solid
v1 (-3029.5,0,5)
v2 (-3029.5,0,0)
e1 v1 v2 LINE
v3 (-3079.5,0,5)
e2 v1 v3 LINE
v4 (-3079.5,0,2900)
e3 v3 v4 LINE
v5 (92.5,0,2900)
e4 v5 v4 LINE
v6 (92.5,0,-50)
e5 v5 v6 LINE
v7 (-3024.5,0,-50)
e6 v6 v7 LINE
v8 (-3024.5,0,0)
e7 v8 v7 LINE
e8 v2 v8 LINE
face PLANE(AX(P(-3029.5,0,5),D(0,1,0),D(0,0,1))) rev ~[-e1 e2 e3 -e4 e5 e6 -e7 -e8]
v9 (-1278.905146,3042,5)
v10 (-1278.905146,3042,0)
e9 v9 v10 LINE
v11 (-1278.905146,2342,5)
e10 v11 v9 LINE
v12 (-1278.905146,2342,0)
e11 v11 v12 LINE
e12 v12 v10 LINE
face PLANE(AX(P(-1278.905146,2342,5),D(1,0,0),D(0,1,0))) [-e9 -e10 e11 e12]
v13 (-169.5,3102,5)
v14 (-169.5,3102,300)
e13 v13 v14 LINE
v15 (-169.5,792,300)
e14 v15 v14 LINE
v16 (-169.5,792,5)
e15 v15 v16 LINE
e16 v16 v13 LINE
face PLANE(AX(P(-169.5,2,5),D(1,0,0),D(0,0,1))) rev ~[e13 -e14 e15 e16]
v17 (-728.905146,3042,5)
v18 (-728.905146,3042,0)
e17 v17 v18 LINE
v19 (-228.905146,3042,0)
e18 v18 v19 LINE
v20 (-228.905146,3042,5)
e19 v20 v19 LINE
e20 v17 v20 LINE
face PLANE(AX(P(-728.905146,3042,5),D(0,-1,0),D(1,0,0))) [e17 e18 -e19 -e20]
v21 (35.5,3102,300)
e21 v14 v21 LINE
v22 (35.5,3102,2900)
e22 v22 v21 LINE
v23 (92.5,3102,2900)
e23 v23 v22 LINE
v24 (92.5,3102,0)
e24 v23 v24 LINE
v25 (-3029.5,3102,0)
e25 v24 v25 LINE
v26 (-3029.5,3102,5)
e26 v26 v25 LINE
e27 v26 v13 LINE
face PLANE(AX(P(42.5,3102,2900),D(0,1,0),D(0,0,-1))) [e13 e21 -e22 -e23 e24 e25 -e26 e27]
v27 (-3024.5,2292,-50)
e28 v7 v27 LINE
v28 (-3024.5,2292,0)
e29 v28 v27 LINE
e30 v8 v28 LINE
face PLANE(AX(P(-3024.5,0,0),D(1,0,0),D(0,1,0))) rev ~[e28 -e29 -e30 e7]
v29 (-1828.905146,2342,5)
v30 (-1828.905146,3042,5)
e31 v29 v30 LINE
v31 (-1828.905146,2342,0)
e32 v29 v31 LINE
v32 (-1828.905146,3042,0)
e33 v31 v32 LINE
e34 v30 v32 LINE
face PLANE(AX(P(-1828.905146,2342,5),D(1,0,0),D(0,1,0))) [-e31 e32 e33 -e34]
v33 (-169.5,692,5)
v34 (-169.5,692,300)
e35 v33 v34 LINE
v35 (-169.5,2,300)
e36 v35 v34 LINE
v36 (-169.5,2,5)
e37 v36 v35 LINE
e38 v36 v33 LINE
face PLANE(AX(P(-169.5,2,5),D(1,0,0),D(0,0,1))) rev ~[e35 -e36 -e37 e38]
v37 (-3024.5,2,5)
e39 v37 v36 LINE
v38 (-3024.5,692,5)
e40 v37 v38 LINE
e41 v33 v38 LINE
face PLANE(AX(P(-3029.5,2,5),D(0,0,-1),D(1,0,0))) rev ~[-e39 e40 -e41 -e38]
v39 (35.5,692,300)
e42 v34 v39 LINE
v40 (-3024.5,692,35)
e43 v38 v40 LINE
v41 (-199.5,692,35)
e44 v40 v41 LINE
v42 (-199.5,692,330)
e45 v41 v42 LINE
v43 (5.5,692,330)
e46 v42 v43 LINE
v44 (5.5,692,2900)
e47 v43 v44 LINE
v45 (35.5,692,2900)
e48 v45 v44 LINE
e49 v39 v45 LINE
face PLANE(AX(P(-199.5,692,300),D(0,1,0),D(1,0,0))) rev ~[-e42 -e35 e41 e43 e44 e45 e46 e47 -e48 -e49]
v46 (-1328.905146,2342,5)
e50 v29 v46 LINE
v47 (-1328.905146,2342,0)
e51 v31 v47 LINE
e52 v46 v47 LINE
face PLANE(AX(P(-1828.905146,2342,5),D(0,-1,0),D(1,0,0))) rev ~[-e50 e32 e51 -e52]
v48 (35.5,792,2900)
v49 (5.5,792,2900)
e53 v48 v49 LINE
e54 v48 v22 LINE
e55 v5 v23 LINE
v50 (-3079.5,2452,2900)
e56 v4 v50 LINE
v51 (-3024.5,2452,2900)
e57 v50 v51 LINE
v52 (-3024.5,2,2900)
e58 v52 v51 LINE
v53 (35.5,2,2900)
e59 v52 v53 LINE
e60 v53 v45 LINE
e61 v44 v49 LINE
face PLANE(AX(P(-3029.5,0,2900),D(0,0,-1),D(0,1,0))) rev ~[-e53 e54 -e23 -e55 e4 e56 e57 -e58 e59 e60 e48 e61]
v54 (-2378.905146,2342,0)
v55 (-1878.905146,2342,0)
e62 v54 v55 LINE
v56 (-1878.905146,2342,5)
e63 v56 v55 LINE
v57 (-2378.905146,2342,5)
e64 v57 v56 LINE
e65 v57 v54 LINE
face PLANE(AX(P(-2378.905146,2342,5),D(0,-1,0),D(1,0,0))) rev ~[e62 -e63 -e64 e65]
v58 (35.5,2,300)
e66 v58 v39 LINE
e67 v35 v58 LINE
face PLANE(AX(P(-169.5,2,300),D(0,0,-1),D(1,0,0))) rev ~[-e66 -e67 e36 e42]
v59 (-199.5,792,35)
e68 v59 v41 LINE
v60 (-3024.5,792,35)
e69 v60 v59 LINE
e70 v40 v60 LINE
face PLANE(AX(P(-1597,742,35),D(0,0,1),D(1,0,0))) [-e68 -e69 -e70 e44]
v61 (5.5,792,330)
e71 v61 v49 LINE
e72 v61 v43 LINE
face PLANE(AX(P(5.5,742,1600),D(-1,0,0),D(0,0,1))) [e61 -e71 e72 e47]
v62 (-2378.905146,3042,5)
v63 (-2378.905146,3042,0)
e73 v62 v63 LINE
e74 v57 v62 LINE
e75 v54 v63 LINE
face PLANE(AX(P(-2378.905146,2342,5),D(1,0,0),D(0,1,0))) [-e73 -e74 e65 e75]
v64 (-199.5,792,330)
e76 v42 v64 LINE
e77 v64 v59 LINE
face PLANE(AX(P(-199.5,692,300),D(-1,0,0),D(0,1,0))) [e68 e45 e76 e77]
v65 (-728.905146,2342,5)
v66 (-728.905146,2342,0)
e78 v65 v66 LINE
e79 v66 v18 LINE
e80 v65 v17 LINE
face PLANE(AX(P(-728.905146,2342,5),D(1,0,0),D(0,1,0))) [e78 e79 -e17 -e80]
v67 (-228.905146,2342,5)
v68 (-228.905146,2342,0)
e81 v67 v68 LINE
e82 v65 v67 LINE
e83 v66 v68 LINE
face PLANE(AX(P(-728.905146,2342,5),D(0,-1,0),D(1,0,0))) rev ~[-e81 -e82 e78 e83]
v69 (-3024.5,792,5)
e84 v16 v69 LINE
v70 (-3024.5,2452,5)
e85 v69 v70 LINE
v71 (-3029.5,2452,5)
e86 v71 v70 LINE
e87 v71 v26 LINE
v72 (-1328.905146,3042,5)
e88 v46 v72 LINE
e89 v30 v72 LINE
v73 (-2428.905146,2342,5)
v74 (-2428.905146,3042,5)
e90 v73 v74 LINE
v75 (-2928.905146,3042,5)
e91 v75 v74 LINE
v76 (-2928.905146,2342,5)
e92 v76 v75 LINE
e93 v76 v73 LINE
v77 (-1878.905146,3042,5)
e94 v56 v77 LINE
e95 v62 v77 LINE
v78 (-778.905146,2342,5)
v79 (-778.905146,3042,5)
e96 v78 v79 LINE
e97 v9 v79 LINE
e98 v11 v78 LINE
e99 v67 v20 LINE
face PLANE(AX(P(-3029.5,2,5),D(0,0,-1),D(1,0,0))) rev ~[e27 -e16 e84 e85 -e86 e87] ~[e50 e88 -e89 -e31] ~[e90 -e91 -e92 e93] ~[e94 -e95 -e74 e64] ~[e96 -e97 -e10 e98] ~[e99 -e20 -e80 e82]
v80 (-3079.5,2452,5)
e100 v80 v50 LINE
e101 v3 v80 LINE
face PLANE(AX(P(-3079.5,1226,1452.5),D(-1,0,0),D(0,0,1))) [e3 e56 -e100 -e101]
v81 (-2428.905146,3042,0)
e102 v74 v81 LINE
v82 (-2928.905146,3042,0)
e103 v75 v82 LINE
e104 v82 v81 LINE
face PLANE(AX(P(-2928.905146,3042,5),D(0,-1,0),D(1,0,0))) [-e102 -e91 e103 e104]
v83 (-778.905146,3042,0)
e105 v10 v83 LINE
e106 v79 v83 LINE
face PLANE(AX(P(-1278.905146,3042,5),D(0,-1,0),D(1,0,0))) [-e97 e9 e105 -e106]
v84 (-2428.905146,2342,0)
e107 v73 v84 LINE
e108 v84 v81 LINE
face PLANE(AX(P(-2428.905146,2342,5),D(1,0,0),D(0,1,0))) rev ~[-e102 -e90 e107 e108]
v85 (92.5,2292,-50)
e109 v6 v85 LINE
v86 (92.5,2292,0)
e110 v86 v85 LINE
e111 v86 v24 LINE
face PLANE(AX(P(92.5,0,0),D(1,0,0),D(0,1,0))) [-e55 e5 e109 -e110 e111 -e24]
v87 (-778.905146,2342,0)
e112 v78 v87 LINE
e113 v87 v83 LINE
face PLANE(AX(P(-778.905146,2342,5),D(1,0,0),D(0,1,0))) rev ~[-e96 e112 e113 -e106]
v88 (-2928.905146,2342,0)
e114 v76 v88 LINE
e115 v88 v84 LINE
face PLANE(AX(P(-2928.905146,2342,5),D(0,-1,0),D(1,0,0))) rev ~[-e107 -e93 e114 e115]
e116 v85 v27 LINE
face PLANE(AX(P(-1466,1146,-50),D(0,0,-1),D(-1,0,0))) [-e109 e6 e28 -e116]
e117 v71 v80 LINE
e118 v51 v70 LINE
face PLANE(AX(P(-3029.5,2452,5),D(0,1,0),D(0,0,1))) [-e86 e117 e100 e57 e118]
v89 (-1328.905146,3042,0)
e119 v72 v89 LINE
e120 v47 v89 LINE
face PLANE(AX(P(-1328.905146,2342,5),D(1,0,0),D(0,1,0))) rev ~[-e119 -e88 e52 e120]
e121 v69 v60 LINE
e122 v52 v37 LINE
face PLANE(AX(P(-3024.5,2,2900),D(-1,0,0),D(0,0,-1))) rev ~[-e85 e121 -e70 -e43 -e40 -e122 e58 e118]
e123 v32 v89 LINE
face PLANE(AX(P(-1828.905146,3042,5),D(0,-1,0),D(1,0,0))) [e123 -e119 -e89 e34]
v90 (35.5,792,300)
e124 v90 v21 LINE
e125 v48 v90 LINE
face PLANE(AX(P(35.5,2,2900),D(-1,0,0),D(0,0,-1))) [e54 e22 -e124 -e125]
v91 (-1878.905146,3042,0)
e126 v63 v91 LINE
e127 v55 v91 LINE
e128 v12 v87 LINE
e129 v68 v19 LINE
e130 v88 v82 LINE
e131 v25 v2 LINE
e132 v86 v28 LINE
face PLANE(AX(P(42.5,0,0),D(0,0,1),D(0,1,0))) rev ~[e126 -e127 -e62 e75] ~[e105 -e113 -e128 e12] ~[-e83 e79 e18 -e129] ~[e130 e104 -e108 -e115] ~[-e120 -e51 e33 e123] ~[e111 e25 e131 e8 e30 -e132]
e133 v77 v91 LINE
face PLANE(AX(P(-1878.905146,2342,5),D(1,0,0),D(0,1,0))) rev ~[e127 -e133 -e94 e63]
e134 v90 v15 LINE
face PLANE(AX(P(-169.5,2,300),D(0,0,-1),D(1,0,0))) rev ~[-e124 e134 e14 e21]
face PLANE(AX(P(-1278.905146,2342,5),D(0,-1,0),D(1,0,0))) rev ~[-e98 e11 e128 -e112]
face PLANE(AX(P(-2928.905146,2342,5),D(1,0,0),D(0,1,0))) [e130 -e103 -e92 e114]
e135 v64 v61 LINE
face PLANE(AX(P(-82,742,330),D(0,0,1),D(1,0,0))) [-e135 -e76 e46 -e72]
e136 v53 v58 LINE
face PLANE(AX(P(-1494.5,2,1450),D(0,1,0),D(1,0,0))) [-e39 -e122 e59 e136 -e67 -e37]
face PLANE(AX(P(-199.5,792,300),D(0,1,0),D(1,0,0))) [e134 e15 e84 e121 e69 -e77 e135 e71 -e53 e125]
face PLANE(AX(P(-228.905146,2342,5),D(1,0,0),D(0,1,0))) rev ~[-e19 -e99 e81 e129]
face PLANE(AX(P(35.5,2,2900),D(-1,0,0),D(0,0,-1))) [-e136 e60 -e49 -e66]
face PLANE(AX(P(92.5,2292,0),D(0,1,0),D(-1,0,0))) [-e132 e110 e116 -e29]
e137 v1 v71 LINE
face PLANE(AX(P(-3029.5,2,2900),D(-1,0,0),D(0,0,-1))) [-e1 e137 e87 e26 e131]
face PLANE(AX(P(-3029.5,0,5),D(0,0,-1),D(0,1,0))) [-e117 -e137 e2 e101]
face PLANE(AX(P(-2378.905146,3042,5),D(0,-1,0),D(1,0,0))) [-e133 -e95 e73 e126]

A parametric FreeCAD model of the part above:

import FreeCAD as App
import Part
import Sketcher
from FreeCAD import Vector


def add_polygon(sketch, points):
    """Adds a closed chain of lines whose ends are joined by coincident constraints."""
    first, n = sketch.GeometryCount, len(points)
    for a, b in zip(points, points[1:] + points[:1]):
        sketch.addGeometry(Part.LineSegment(App.Vector(*a, 0), App.Vector(*b, 0)), False)
    for i in range(n):
        sketch.addConstraint(Sketcher.Constraint("Coincident", first + i, 2, first + (i + 1) % n, 1))

doc = App.newDocument("Part")
body = doc.addObject("PartDesign::Body", "Body")

# Sketch on XZ plane
sketch1 = body.newObject("Sketcher::SketchObject", "Sketch")
sketch1.AttachmentSupport = (doc.getObject("XZ_Plane"), [""])
sketch1.MapMode = "FlatFace"
add_polygon(sketch1, [(-3030, 0), (-3030, 2900), (40, 2900), (40, 0)])  # lines 0-3
sketch1.addConstraint([
    Sketcher.Constraint("Vertical", 0),
    Sketcher.Constraint("Horizontal", 1),
    Sketcher.Constraint("Vertical", 2),
    Sketcher.Constraint("Horizontal", 3),
    Sketcher.Constraint("PointOnObject", 2, 2, -1),
    Sketcher.Constraint("DistanceX", 1, 1, 1, 2, 3070.0),
    Sketcher.Constraint("DistanceY", 0, 1, 0, 2, 2900.0),
    Sketcher.Constraint("DistanceX", 0, 2, -1, 1, 3029.5),
])
pad1 = body.newObject("PartDesign::Pad", "Pad")
pad1.Profile = sketch1
pad1.Length = 2
pad1.Reversed = True

# Sketch on XZ plane
sketch2 = body.newObject("Sketcher::SketchObject", "Sketch001")
sketch2.AttachmentSupport = (doc.getObject("XZ_Plane"), [""])
sketch2.MapMode = "FlatFace"
sketch2.AttachmentOffset = App.Placement(Vector(0, 0, -2), App.Rotation())
add_polygon(sketch2, [(36, 300), (36, 2900), (40, 2900), (40, 0), (-3030, 0), (-3030, 5), (-170, 5), (-170, 300)])  # lines 0-7
sketch2.addConstraint([
    Sketcher.Constraint("Vertical", 0),
    Sketcher.Constraint("Horizontal", 1),
    Sketcher.Constraint("Vertical", 2),
    Sketcher.Constraint("Horizontal", 3),
    Sketcher.Constraint("Vertical", 4),
    Sketcher.Constraint("Horizontal", 5),
    Sketcher.Constraint("Vertical", 6),
    Sketcher.Constraint("Horizontal", 7),
    Sketcher.Constraint("PointOnObject", 2, 2, -1),
    Sketcher.Constraint("Equal", 1, 4),
    Sketcher.Constraint("DistanceX", 1, 1, 1, 2, 5.0),
    Sketcher.Constraint("DistanceX", 3, 2, 3, 1, 3070.0),
    Sketcher.Constraint("DistanceX", 5, 1, 5, 2, 2860.0),
    Sketcher.Constraint("DistanceY", 0, 1, 0, 2, 2600.0),
    Sketcher.Constraint("DistanceY", 2, 2, 2, 1, 2900.0),
    Sketcher.Constraint("DistanceX", -1, 1, 0, 2, 35.5),
])
pad2 = body.newObject("PartDesign::Pad", "Pad001")
pad2.Profile = sketch2
pad2.Length = 3100
pad2.Reversed = True

# Sketch on XZ plane
sketch3 = body.newObject("Sketcher::SketchObject", "Sketch002")
sketch3.AttachmentSupport = (doc.getObject("XZ_Plane"), [""])
sketch3.MapMode = "FlatFace"
sketch3.AttachmentOffset = App.Placement(Vector(0, 0, -2), App.Rotation())
add_polygon(sketch3, [(-3030, 5), (-3030, 2900), (-3024, 2900), (-3024, 5)])  # lines 0-3
sketch3.addConstraint([
    Sketcher.Constraint("Vertical", 0),
    Sketcher.Constraint("Horizontal", 1),
    Sketcher.Constraint("Vertical", 2),
    Sketcher.Constraint("Horizontal", 3),
    Sketcher.Constraint("DistanceX", 1, 1, 1, 2, 5.0),
    Sketcher.Constraint("DistanceY", 0, 1, 0, 2, 2895.0),
    Sketcher.Constraint("DistanceY", -1, 1, 0, 2, 2900.0),
    Sketcher.Constraint("DistanceX", 0, 2, -1, 1, 3029.5),
])
pad3 = body.newObject("PartDesign::Pad", "Pad002")
pad3.Profile = sketch3
pad3.Length = 2450
pad3.Reversed = True

# Sketch on XY plane
sketch4 = body.newObject("Sketcher::SketchObject", "Sketch003")
sketch4.AttachmentSupport = (doc.getObject("XY_Plane"), [""])
sketch4.MapMode = "FlatFace"
sketch4.AttachmentOffset = App.Placement(Vector(0, 0, 5), App.Rotation())
add_polygon(sketch4, [(-3024, 792), (-3024, 692), (-170, 692), (-170, 792)])  # lines 0-3
sketch4.addConstraint([
    Sketcher.Constraint("Vertical", 0),
    Sketcher.Constraint("Horizontal", 1),
    Sketcher.Constraint("Vertical", 2),
    Sketcher.Constraint("Horizontal", 3),
    Sketcher.Constraint("DistanceX", 1, 1, 1, 2, 2855.0),
    Sketcher.Constraint("DistanceY", 0, 2, 0, 1, 100.0),
    Sketcher.Constraint("DistanceY", -1, 1, 0, 2, 692.0),
    Sketcher.Constraint("DistanceX", 0, 2, -1, 1, 3024.5),
])
pad4 = body.newObject("PartDesign::Pad", "Pad003")
pad4.Profile = sketch4
pad4.Length = 30

# Sketch on YZ plane
sketch5 = body.newObject("Sketcher::SketchObject", "Sketch004")
sketch5.AttachmentSupport = (doc.getObject("YZ_Plane"), [""])
sketch5.MapMode = "FlatFace"
sketch5.AttachmentOffset = App.Placement(Vector(0, 0, -169.5), App.Rotation())
add_polygon(sketch5, [(792, 0), (692, 0), (692, 300), (792, 300)])  # lines 0-3
sketch5.addConstraint([
    Sketcher.Constraint("Horizontal", 0),
    Sketcher.Constraint("Vertical", 1),
    Sketcher.Constraint("Horizontal", 2),
    Sketcher.Constraint("Vertical", 3),
    Sketcher.Constraint("PointOnObject", 0, 2, -1),
    Sketcher.Constraint("DistanceX", 0, 2, 0, 1, 100.0),
    Sketcher.Constraint("DistanceY", 1, 1, 1, 2, 300.0),
    Sketcher.Constraint("DistanceX", -1, 1, 0, 2, 692.0),
])
pad5 = body.newObject("PartDesign::Pad", "Pad004")
pad5.Profile = sketch5
pad5.Length = 30
pad5.Reversed = True

# Sketch on XY plane
sketch6 = body.newObject("Sketcher::SketchObject", "Sketch005")
sketch6.AttachmentSupport = (doc.getObject("XY_Plane"), [""])
sketch6.MapMode = "FlatFace"
sketch6.AttachmentOffset = App.Placement(Vector(0, 0, 300), App.Rotation())
add_polygon(sketch6, [(-200, 792), (-200, 692), (36, 692), (36, 792)])  # lines 0-3
sketch6.addConstraint([
    Sketcher.Constraint("Vertical", 0),
    Sketcher.Constraint("Horizontal", 1),
    Sketcher.Constraint("Vertical", 2),
    Sketcher.Constraint("Horizontal", 3),
    Sketcher.Constraint("DistanceX", 1, 1, 1, 2, 235.0),
    Sketcher.Constraint("DistanceY", 0, 2, 0, 1, 100.0),
    Sketcher.Constraint("DistanceY", -1, 1, 0, 2, 692.0),
    Sketcher.Constraint("DistanceX", 0, 2, -1, 1, 199.5),
])
pad6 = body.newObject("PartDesign::Pad", "Pad005")
pad6.Profile = sketch6
pad6.Length = 30

# Sketch on YZ plane
sketch7 = body.newObject("Sketcher::SketchObject", "Sketch006")
sketch7.AttachmentSupport = (doc.getObject("YZ_Plane"), [""])
sketch7.MapMode = "FlatFace"
sketch7.AttachmentOffset = App.Placement(Vector(0, 0, 35.5), App.Rotation())
add_polygon(sketch7, [(792, 300), (692, 300), (692, 2900), (792, 2900)])  # lines 0-3
sketch7.addConstraint([
    Sketcher.Constraint("Horizontal", 0),
    Sketcher.Constraint("Vertical", 1),
    Sketcher.Constraint("Horizontal", 2),
    Sketcher.Constraint("Vertical", 3),
    Sketcher.Constraint("DistanceX", 0, 2, 0, 1, 100.0),
    Sketcher.Constraint("DistanceY", 1, 1, 1, 2, 2600.0),
    Sketcher.Constraint("DistanceX", -1, 1, 0, 2, 692.0),
    Sketcher.Constraint("DistanceY", -1, 1, 0, 2, 300.0),
])
pad7 = body.newObject("PartDesign::Pad", "Pad006")
pad7.Profile = sketch7
pad7.Length = 30
pad7.Reversed = True

# Sketch on XY plane
sketch8 = body.newObject("Sketcher::SketchObject", "Sketch007")
sketch8.AttachmentSupport = (doc.getObject("XY_Plane"), [""])
sketch8.MapMode = "FlatFace"
sketch8.AttachmentOffset = App.Placement(Vector(0, 0, 5), App.Rotation())
add_polygon(sketch8, [(-2929, 3042), (-2929, 2342), (-2429, 2342), (-2429, 3042)])  # lines 0-3
add_polygon(sketch8, [(-2379, 3042), (-2379, 2342), (-1879, 2342), (-1879, 3042)])  # lines 4-7
add_polygon(sketch8, [(-1829, 3042), (-1829, 2342), (-1329, 2342), (-1329, 3042)])  # lines 8-11
add_polygon(sketch8, [(-1279, 3042), (-1279, 2342), (-779, 2342), (-779, 3042)])  # lines 12-15
add_polygon(sketch8, [(-729, 3042), (-729, 2342), (-229, 2342), (-229, 3042)])  # lines 16-19
sketch8.addConstraint([
    Sketcher.Constraint("Vertical", 0),
    Sketcher.Constraint("Horizontal", 1),
    Sketcher.Constraint("Vertical", 2),
    Sketcher.Constraint("Horizontal", 3),
    Sketcher.Constraint("Vertical", 4),
    Sketcher.Constraint("Horizontal", 5),
    Sketcher.Constraint("Vertical", 6),
    Sketcher.Constraint("Horizontal", 7),
    Sketcher.Constraint("Vertical", 8),
    Sketcher.Constraint("Horizontal", 9),
    Sketcher.Constraint("Vertical", 10),
    Sketcher.Constraint("Horizontal", 11),
    Sketcher.Constraint("Vertical", 12),
    Sketcher.Constraint("Horizontal", 13),
    Sketcher.Constraint("Vertical", 14),
    Sketcher.Constraint("Horizontal", 15),
    Sketcher.Constraint("Vertical", 16),
    Sketcher.Constraint("Horizontal", 17),
    Sketcher.Constraint("Vertical", 18),
    Sketcher.Constraint("Horizontal", 19),
    Sketcher.Constraint("Horizontal", 1, 2, 4, 2),
    Sketcher.Constraint("Horizontal", 3, 2, 6, 2),
    Sketcher.Constraint("Horizontal", 5, 2, 8, 2),
    Sketcher.Constraint("Horizontal", 7, 2, 10, 2),
    Sketcher.Constraint("Horizontal", 9, 2, 12, 2),
    Sketcher.Constraint("Horizontal", 11, 2, 14, 2),
    Sketcher.Constraint("Horizontal", 13, 2, 16, 2),
    Sketcher.Constraint("Horizontal", 15, 2, 18, 2),
    Sketcher.Constraint("Equal", 3, 5),
    Sketcher.Constraint("Equal", 7, 9),
    Sketcher.Constraint("Equal", 11, 13),
    Sketcher.Constraint("Equal", 15, 17),
    Sketcher.Constraint("DistanceX", 1, 1, 1, 2, 500.0),
    Sketcher.Constraint("DistanceY", 0, 2, 0, 1, 700.0),
    Sketcher.Constraint("DistanceY", -1, 1, 0, 2, 2342.0),
    Sketcher.Constraint("DistanceX", 1, 2, 4, 2, 50.0),
    Sketcher.Constraint("DistanceX", 5, 2, 8, 2, 50.0),
    Sketcher.Constraint("DistanceX", 9, 2, 12, 2, 50.0),
    Sketcher.Constraint("DistanceX", 13, 2, 16, 2, 50.0),
    Sketcher.Constraint("DistanceX", 0, 2, -1, 1, 2928.905146),
])
pocket1 = body.newObject("PartDesign::Pocket", "Pocket")
pocket1.Profile = sketch8
pocket1.Length = 30

# Sketch on YZ plane
sketch9 = body.newObject("Sketcher::SketchObject", "Sketch008")
sketch9.AttachmentSupport = (doc.getObject("YZ_Plane"), [""])
sketch9.MapMode = "FlatFace"
sketch9.AttachmentOffset = App.Placement(Vector(0, 0, 40.5), App.Rotation())
add_polygon(sketch9, [(3102, 2900), (0, 2900), (0, 0), (3102, 0)])  # lines 0-3
sketch9.addConstraint([
    Sketcher.Constraint("Horizontal", 0),
    Sketcher.Constraint("Vertical", 1),
    Sketcher.Constraint("Horizontal", 2),
    Sketcher.Constraint("Vertical", 3),
    Sketcher.Constraint("Coincident", 1, 2, -1, 1),
    Sketcher.Constraint("DistanceX", 0, 2, 0, 1, 3102.0),
    Sketcher.Constraint("DistanceY", 1, 2, 1, 1, 2900.0),
])
pad8 = body.newObject("PartDesign::Pad", "Pad007")
pad8.Profile = sketch9
pad8.Length = 2

# Sketch on YZ plane
sketch10 = body.newObject("Sketcher::SketchObject", "Sketch009")
sketch10.AttachmentSupport = (doc.getObject("YZ_Plane"), [""])
sketch10.MapMode = "FlatFace"
sketch10.AttachmentOffset = App.Placement(Vector(0, 0, 42.5), App.Rotation())
add_polygon(sketch10, [(3102, 2900), (0, 2900), (0, 0), (3102, 0)])  # lines 0-3
sketch10.addConstraint([
    Sketcher.Constraint("Horizontal", 0),
    Sketcher.Constraint("Vertical", 1),
    Sketcher.Constraint("Horizontal", 2),
    Sketcher.Constraint("Vertical", 3),
    Sketcher.Constraint("Coincident", 1, 2, -1, 1),
    Sketcher.Constraint("DistanceX", 0, 2, 0, 1, 3102.0),
    Sketcher.Constraint("DistanceY", 1, 2, 1, 1, 2900.0),
])
pad9 = body.newObject("PartDesign::Pad", "Pad008")
pad9.Profile = sketch10
pad9.Length = 50

# Sketch on XY plane
sketch11 = body.newObject("Sketcher::SketchObject", "Sketch010")
sketch11.AttachmentSupport = (doc.getObject("XY_Plane"), [""])
sketch11.MapMode = "FlatFace"
add_polygon(sketch11, [(92, 2292), (92, 0), (-3024, 0), (-3024, 2292)])  # lines 0-3
sketch11.addConstraint([
    Sketcher.Constraint("Vertical", 0),
    Sketcher.Constraint("Horizontal", 1),
    Sketcher.Constraint("Vertical", 2),
    Sketcher.Constraint("Horizontal", 3),
    Sketcher.Constraint("PointOnObject", 0, 2, -1),
    Sketcher.Constraint("DistanceX", 1, 2, 1, 1, 3117.0),
    Sketcher.Constraint("DistanceY", 0, 2, 0, 1, 2292.0),
    Sketcher.Constraint("DistanceX", -1, 1, 0, 2, 92.5),
])
pad10 = body.newObject("PartDesign::Pad", "Pad009")
pad10.Profile = sketch11
pad10.Length = 50
pad10.Reversed = True

# Sketch on YZ plane
sketch12 = body.newObject("Sketcher::SketchObject", "Sketch011")
sketch12.AttachmentSupport = (doc.getObject("YZ_Plane"), [""])
sketch12.MapMode = "FlatFace"
sketch12.AttachmentOffset = App.Placement(Vector(0, 0, -3029.5), App.Rotation())
add_polygon(sketch12, [(2452, 5), (0, 5), (0, 2900), (2452, 2900)])  # lines 0-3
sketch12.addConstraint([
    Sketcher.Constraint("Horizontal", 0),
    Sketcher.Constraint("Vertical", 1),
    Sketcher.Constraint("Horizontal", 2),
    Sketcher.Constraint("Vertical", 3),
    Sketcher.Constraint("PointOnObject", 0, 2, -2),
    Sketcher.Constraint("DistanceX", 0, 2, 0, 1, 2452.0),
    Sketcher.Constraint("DistanceY", 1, 1, 1, 2, 2895.0),
    Sketcher.Constraint("DistanceY", -1, 1, 0, 2, 5.0),
])
pad11 = body.newObject("PartDesign::Pad", "Pad010")
pad11.Profile = sketch12
pad11.Length = 50
pad11.Reversed = True

doc.recompute()
